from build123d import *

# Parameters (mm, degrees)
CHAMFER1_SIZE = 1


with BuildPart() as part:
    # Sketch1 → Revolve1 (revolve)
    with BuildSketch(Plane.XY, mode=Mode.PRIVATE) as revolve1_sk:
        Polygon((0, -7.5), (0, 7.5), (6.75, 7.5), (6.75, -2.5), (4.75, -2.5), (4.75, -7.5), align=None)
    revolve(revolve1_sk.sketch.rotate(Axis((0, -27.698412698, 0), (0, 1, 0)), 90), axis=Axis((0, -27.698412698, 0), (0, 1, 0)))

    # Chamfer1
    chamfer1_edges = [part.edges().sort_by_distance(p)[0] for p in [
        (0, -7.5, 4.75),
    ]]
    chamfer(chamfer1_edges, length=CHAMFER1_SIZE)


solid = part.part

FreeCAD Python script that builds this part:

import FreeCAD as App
import Part
import Sketcher


def edges_at(feature, points):
    """Names of the edges that pass closest to the given points."""
    edges = feature.Shape.Edges
    near = lambda p: min(range(len(edges)), key=lambda i: edges[i].distToShape(Part.Vertex(*p))[0])
    return sorted({f"Edge{near(p) + 1}" for p in points})

doc = App.newDocument("Part")
params = doc.addObject("Spreadsheet::Sheet", "Params")
for row, (alias, value) in enumerate([
    ("sketch1_width", "2 mm"),
    ("sketch1_height", "15 mm"),
    ("sketch1_height2", "5 mm"),
    ("sketch1_width2", "4.75 mm"),
    ("revolution_angle", "360 deg"),
    ("chamfer_size", "1 mm"),
], start=1):
    params.set(f"A{row}", alias)
    params.set(f"B{row}", "=" + value)
    params.setAlias(f"B{row}", alias)

body = doc.addObject("PartDesign::Body", "Body")

sketch1 = body.newObject("Sketcher::SketchObject", "Sketch")
sketch1.AttachmentSupport = (doc.getObject("XY_Plane"), [""])
sketch1.MapMode = "FlatFace"
sketch1.addGeometry([
    Part.LineSegment(App.Vector(0, 7.5, 0), App.Vector(0, -7.5, 0)),
    Part.LineSegment(App.Vector(0, -7.5, 0), App.Vector(4.8, -7.5, 0)),
    Part.LineSegment(App.Vector(4.8, -7.5, 0), App.Vector(4.8, -2.5, 0)),
    Part.LineSegment(App.Vector(4.8, -2.5, 0), App.Vector(6.8, -2.5, 0)),
    Part.LineSegment(App.Vector(6.8, -2.5, 0), App.Vector(6.8, 7.5, 0)),
    Part.LineSegment(App.Vector(6.8, 7.5, 0), App.Vector(0, 7.5, 0)),
], False)
sketch1.addConstraint([
    Sketcher.Constraint("Coincident", 0, 2, 1, 1),
    Sketcher.Constraint("Coincident", 1, 2, 2, 1),
    Sketcher.Constraint("Coincident", 2, 2, 3, 1),
    Sketcher.Constraint("Coincident", 3, 2, 4, 1),
    Sketcher.Constraint("Coincident", 4, 2, 5, 1),
    Sketcher.Constraint("Coincident", 5, 2, 0, 1),
    Sketcher.Constraint("Vertical", 0),
    Sketcher.Constraint("Horizontal", 1),
    Sketcher.Constraint("Vertical", 2),
    Sketcher.Constraint("Horizontal", 3),
    Sketcher.Constraint("Vertical", 4),
    Sketcher.Constraint("Horizontal", 5),
    Sketcher.Constraint("Symmetric", 0, 2, 5, 2, -1, 1),
    Sketcher.Constraint("DistanceX", 3, 1, 3, 2, 2.0),
    Sketcher.Constraint("DistanceY", 0, 2, 0, 1, 15.0),
    Sketcher.Constraint("DistanceY", 2, 1, 2, 2, 5.0),
    Sketcher.Constraint("DistanceX", 1, 1, 1, 2, 4.75),
])
sketch1.setExpression("Constraints[13]", "Params.sketch1_width")
sketch1.setExpression("Constraints[14]", "Params.sketch1_height")
sketch1.setExpression("Constraints[15]", "Params.sketch1_height2")
sketch1.setExpression("Constraints[16]", "Params.sketch1_width2")
revolution = body.newObject("PartDesign::Revolution", "Revolution")
revolution.Profile = sketch1
revolution.ReferenceAxis = (sketch1, ["V_Axis"])
revolution.setExpression("Angle", "Params.revolution_angle")
doc.recompute()

chamfer = body.newObject("PartDesign::Chamfer", "Chamfer")
chamfer.Base = (revolution, edges_at(revolution, [(0, -7.5, 4.75)]))
chamfer.setExpression("Size", "Params.chamfer_size")

doc.recompute()
